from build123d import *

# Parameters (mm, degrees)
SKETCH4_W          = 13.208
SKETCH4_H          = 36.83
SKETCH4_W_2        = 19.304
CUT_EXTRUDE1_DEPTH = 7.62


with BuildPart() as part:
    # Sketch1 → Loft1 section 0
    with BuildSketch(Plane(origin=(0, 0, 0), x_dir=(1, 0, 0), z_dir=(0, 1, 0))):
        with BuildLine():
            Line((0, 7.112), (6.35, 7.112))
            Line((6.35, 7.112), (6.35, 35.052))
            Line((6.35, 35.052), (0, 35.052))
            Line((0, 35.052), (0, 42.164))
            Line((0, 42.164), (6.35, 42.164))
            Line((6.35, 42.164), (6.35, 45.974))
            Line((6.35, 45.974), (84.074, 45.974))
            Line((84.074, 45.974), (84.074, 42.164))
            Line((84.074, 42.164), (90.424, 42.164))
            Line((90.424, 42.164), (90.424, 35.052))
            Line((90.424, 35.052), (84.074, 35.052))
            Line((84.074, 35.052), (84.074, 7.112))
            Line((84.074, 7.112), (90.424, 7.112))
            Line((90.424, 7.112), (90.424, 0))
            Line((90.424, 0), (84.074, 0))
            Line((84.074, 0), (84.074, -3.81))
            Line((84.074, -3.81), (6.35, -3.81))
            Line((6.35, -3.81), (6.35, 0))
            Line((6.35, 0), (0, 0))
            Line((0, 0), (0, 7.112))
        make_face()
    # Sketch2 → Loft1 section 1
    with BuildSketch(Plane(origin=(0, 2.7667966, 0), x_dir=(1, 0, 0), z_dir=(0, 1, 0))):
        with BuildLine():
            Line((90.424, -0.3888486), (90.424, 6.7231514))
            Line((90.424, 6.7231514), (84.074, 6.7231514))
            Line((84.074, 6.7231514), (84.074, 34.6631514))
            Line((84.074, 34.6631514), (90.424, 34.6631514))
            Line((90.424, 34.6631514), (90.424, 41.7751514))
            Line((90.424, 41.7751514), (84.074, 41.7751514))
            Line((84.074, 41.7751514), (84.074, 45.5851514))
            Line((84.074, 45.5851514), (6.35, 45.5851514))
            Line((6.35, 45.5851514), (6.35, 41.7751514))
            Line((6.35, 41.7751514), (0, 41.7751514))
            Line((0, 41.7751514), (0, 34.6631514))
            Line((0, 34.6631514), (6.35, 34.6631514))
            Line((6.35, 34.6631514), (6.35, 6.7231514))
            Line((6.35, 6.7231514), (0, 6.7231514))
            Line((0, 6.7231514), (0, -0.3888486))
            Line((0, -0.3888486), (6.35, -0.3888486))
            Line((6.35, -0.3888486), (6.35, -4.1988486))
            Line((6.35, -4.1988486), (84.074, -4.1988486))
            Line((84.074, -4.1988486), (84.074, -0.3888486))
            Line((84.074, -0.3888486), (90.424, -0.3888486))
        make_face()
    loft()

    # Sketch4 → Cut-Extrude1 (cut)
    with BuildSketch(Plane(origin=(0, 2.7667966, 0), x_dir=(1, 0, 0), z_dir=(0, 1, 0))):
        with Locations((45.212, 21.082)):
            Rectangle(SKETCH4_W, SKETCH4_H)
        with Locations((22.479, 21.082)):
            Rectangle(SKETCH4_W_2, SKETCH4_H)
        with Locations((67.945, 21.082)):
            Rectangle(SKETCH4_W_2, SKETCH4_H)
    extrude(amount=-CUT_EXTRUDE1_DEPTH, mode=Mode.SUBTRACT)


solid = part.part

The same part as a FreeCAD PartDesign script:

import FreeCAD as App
import Part
import Sketcher

V = App.Vector
Q = App.Units.Quantity


def add_polygon(sketch, points):
    """Adds a closed chain of lines whose ends are joined by coincident constraints."""
    first, n = sketch.GeometryCount, len(points)
    for a, b in zip(points, points[1:] + points[:1]):
        sketch.addGeometry(Part.LineSegment(App.Vector(*a, 0), App.Vector(*b, 0)), False)
    for i in range(n):
        sketch.addConstraint(Sketcher.Constraint("Coincident", first + i, 2, first + (i + 1) % n, 1))

doc = App.newDocument("Part")
body = doc.addObject("PartDesign::Body", "Body")

sketch1 = body.newObject("Sketcher::SketchObject", "Sketch")
sketch1.AttachmentSupport = (doc.getObject("XZ_Plane"), [""])
sketch1.MapMode = "FlatFace"
add_polygon(sketch1, [(6.3, -7.1), (0, -7.1), (0, 0), (6.3, 0), (6.3, 3.8), (84.1, 3.8), (84.1, 0), (90.4, 0), (90.4, -7.1), (84.1, -7.1), (84.1, -35.1), (90.4, -35.1), (90.4, -42.2), (84.1, -42.2), (84.1, -46), (6.3, -46), (6.3, -42.2), (0, -42.2), (0, -35.1), (6.3, -35.1)])
sketch1.addConstraint([
    Sketcher.Constraint("Horizontal", 0),
    Sketcher.Constraint("Vertical", 1),
    Sketcher.Constraint("Horizontal", 2),
    Sketcher.Constraint("Vertical", 3),
    Sketcher.Constraint("Horizontal", 4),
    Sketcher.Constraint("Vertical", 5),
    Sketcher.Constraint("Horizontal", 6),
    Sketcher.Constraint("Vertical", 7),
    Sketcher.Constraint("Horizontal", 8),
    Sketcher.Constraint("Vertical", 9),
    Sketcher.Constraint("Horizontal", 10),
    Sketcher.Constraint("Vertical", 11),
    Sketcher.Constraint("Horizontal", 12),
    Sketcher.Constraint("Vertical", 13),
    Sketcher.Constraint("Horizontal", 14),
    Sketcher.Constraint("Vertical", 15),
    Sketcher.Constraint("Horizontal", 16),
    Sketcher.Constraint("Vertical", 17),
    Sketcher.Constraint("Horizontal", 18),
    Sketcher.Constraint("Vertical", 19),
    Sketcher.Constraint("Coincident", 1, 2, -1, 1),
    Sketcher.Constraint("PointOnObject", 5, 2, -1),
    Sketcher.Constraint("PointOnObject", 16, 2, -2),
    Sketcher.Constraint("Horizontal", 0, 2, 7, 2),
    Sketcher.Constraint("Horizontal", 12, 2, 15, 2),
    Sketcher.Constraint("Horizontal", 10, 2, 17, 2),
    Sketcher.Constraint("Vertical", 5, 2, 8, 2),
    Sketcher.Constraint("Vertical", 7, 2, 10, 2),
    Sketcher.Constraint("Vertical", 9, 2, 12, 2),
    Sketcher.Constraint("Vertical", 3, 2, 14, 2),
    Sketcher.Constraint("Vertical", 15, 2, 18, 2),
    Sketcher.Constraint("Equal", 2, 6),
    Sketcher.Constraint("Equal", 7, 11),
    Sketcher.Constraint("Equal", 5, 13),
    Sketcher.Constraint("DistanceY", 9, 2, 9, 1, Q("1.1 in")),
    Sketcher.Constraint("DistanceX", 0, 2, 0, 1, Q("0.25 in")),
    Sketcher.Constraint("DistanceX", 4, 1, 4, 2, Q("3.06 in")),
    Sketcher.Constraint("DistanceY", 1, 1, 1, 2, Q("0.28 in")),
    Sketcher.Constraint("DistanceY", 3, 1, 3, 2, Q("0.15 in")),
])

sketch2 = body.newObject("Sketcher::SketchObject", "Sketch001")
sketch2.AttachmentSupport = (doc.getObject("XZ_Plane"), [""])
sketch2.MapMode = "FlatFace"
sketch2.AttachmentOffset = App.Placement(V(0, 0, -2.766797), App.Rotation())
add_polygon(sketch2, [(90.4, 0.4), (90.4, -6.7), (84.1, -6.7), (84.1, -34.7), (90.4, -34.7), (90.4, -41.8), (84.1, -41.8), (84.1, -45.6), (6.3, -45.6), (6.3, -41.8), (0, -41.8), (0, -34.7), (6.3, -34.7), (6.3, -6.7), (0, -6.7), (0, 0.4), (6.3, 0.4), (6.3, 4.2), (84.1, 4.2), (84.1, 0.4)])
sketch2.addConstraint([
    Sketcher.Constraint("Vertical", 0),
    Sketcher.Constraint("Horizontal", 1),
    Sketcher.Constraint("Vertical", 2),
    Sketcher.Constraint("Horizontal", 3),
    Sketcher.Constraint("Vertical", 4),
    Sketcher.Constraint("Horizontal", 5),
    Sketcher.Constraint("Vertical", 6),
    Sketcher.Constraint("Horizontal", 7),
    Sketcher.Constraint("Vertical", 8),
    Sketcher.Constraint("Horizontal", 9),
    Sketcher.Constraint("Vertical", 10),
    Sketcher.Constraint("Horizontal", 11),
    Sketcher.Constraint("Vertical", 12),
    Sketcher.Constraint("Horizontal", 13),
    Sketcher.Constraint("Vertical", 14),
    Sketcher.Constraint("Horizontal", 15),
    Sketcher.Constraint("Vertical", 16),
    Sketcher.Constraint("Horizontal", 17),
    Sketcher.Constraint("Vertical", 18),
    Sketcher.Constraint("Horizontal", 19),
    Sketcher.Constraint("PointOnObject", 9, 2, -2),
    Sketcher.Constraint("PointOnObject", 13, 2, -2),
    Sketcher.Constraint("Horizontal", 5, 2, 8, 2),
    Sketcher.Constraint("Horizontal", 3, 2, 10, 2),
    Sketcher.Constraint("Horizontal", 1, 2, 12, 2),
    Sketcher.Constraint("Horizontal", 15, 2, 18, 2),
    Sketcher.Constraint("Vertical", 0, 2, 3, 2),
    Sketcher.Constraint("Vertical", 2, 2, 5, 2),
    Sketcher.Constraint("Vertical", 8, 2, 11, 2),
    Sketcher.Constraint("Vertical", 12, 2, 15, 2),
    Sketcher.Constraint("Vertical", 6, 2, 17, 2),
    Sketcher.Constraint("Equal", 5, 9),
    Sketcher.Constraint("Equal", 0, 4),
    Sketcher.Constraint("Equal", 8, 16),
    Sketcher.Constraint("DistanceY", 2, 2, 2, 1, Q("1.1 in")),
    Sketcher.Constraint("DistanceX", 1, 2, 1, 1, Q("0.25 in")),
    Sketcher.Constraint("DistanceX", 7, 2, 7, 1, Q("3.06 in")),
    Sketcher.Constraint("DistanceY", 0, 2, 0, 1, Q("0.28 in")),
    Sketcher.Constraint("DistanceY", 6, 2, 6, 1, Q("0.15 in")),
    Sketcher.Constraint("DistanceY", 0, 2, -1, 1, 6.723151),
])

additiveloft = body.newObject("PartDesign::AdditiveLoft", "AdditiveLoft")
additiveloft.Profile = sketch1
additiveloft.Sections = [sketch2]

sketch3 = body.newObject("Sketcher::SketchObject", "Sketch002")
sketch3.AttachmentSupport = (doc.getObject("XZ_Plane"), [""])
sketch3.MapMode = "FlatFace"
sketch3.AttachmentOffset = App.Placement(V(0, 0, -2.766797), App.Rotation())
add_polygon(sketch3, [(39, -39), (39, -3), (52, -3), (52, -39)])
add_polygon(sketch3, [(13, -39), (13, -3), (32, -3), (32, -39)])
add_polygon(sketch3, [(58, -39), (58, -3), (78, -3), (78, -39)])
sketch3.addConstraint([
    Sketcher.Constraint("Vertical", 0),
    Sketcher.Constraint("Horizontal", 1),
    Sketcher.Constraint("Vertical", 2),
    Sketcher.Constraint("Horizontal", 3),
    Sketcher.Constraint("Vertical", 4),
    Sketcher.Constraint("Horizontal", 5),
    Sketcher.Constraint("Vertical", 6),
    Sketcher.Constraint("Horizontal", 7),
    Sketcher.Constraint("Vertical", 8),
    Sketcher.Constraint("Horizontal", 9),
    Sketcher.Constraint("Vertical", 10),
    Sketcher.Constraint("Horizontal", 11),
    Sketcher.Constraint("Horizontal", 1, 2, 4, 2),
    Sketcher.Constraint("Horizontal", 3, 2, 6, 2),
    Sketcher.Constraint("Horizontal", 5, 2, 8, 2),
    Sketcher.Constraint("Horizontal", 7, 2, 10, 2),
    Sketcher.Constraint("Equal", 7, 9),
    Sketcher.Constraint("DistanceX", 1, 1, 1, 2, Q("0.52 in")),
    Sketcher.Constraint("DistanceX", 5, 1, 5, 2, Q("0.76 in")),
    Sketcher.Constraint("DistanceY", 0, 1, 0, 2, Q("1.45 in")),
    Sketcher.Constraint("DistanceX", -1, 1, 0, 2, Q("1.52 in")),
    Sketcher.Constraint("DistanceX", 5, 2, 8, 2, Q("1.03 in")),
    Sketcher.Constraint("DistanceY", 0, 2, -1, 1, Q("0.105 in")),
    Sketcher.Constraint("DistanceX", -1, 1, 4, 2, Q("0.505 in")),
])
pocket1 = body.newObject("PartDesign::Pocket", "Pocket")
pocket1.Profile = sketch3
pocket1.Length = Q("0.3 in")
pocket1.Reversed = True

doc.recompute()
